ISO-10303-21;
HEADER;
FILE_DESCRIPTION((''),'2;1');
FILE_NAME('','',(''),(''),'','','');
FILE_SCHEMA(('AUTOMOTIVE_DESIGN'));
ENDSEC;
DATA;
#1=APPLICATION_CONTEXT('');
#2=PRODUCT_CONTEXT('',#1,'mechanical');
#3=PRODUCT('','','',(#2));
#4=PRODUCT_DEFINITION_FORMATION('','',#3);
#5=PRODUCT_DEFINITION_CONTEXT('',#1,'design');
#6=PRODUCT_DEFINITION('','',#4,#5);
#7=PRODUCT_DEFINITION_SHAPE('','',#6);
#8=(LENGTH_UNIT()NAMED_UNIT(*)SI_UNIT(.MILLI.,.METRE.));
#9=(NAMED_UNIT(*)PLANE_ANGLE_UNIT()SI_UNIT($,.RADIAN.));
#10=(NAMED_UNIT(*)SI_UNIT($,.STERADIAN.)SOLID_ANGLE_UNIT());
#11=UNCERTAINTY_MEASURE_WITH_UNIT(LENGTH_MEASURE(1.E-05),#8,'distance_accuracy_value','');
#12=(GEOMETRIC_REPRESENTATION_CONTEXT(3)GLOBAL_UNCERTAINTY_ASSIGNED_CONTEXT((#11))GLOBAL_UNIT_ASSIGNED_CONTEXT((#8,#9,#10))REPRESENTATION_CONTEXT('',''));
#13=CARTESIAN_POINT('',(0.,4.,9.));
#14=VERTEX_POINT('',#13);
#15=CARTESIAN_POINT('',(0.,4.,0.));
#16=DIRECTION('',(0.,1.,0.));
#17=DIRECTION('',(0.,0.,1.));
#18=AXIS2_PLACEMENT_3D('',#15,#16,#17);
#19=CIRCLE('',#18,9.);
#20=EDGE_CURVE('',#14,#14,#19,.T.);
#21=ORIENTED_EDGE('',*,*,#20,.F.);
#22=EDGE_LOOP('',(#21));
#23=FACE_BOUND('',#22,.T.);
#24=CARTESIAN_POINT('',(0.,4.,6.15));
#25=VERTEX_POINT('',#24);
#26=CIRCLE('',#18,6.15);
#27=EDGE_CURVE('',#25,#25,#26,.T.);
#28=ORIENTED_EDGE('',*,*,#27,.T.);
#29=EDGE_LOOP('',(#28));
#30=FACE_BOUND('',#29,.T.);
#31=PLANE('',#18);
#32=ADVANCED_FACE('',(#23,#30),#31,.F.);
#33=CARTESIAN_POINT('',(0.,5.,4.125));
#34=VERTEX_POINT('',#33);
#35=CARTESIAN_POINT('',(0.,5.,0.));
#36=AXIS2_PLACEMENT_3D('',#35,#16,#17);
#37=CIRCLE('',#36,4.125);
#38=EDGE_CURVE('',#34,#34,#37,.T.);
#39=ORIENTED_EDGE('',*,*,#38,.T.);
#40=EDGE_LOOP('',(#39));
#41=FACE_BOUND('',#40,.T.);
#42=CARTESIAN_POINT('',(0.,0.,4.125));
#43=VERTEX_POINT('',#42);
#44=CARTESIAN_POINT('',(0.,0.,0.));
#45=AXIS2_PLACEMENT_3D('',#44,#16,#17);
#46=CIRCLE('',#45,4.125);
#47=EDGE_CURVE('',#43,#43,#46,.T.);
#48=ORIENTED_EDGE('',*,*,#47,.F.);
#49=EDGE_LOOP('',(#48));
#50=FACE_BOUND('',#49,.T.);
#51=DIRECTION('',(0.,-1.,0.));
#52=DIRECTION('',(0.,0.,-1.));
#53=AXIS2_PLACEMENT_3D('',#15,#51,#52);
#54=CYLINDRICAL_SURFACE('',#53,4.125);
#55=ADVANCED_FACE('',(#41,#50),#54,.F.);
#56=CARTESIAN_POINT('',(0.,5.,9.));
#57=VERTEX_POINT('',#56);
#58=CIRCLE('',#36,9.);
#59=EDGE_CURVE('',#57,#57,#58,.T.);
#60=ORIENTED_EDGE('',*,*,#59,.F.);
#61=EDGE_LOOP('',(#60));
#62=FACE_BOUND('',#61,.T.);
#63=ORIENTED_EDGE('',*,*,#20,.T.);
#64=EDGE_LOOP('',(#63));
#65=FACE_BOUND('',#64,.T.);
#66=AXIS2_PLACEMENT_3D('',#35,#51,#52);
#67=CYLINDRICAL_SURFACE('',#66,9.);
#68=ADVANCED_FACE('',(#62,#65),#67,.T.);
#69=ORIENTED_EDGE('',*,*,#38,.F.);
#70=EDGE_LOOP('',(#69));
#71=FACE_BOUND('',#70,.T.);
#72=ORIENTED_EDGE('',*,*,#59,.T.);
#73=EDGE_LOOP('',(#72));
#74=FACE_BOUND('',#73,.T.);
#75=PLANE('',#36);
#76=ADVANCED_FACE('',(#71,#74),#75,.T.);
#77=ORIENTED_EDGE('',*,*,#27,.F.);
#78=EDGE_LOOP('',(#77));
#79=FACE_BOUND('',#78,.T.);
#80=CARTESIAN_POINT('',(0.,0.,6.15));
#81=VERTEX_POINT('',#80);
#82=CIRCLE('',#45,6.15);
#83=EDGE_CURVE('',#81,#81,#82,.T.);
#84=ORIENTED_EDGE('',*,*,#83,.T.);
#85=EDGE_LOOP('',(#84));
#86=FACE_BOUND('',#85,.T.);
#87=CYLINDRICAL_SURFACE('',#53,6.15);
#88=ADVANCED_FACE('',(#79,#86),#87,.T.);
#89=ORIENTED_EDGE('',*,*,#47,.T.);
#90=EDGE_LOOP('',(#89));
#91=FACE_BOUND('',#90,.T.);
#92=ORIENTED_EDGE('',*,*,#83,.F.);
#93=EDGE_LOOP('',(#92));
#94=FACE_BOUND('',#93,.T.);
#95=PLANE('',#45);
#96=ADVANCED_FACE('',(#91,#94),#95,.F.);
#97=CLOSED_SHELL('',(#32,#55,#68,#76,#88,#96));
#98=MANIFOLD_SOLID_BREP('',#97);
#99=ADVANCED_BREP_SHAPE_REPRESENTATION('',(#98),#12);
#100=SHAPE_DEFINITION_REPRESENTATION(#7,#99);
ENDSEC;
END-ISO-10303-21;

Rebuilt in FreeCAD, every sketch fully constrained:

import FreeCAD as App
import Part
import Sketcher
from FreeCAD import Vector

doc = App.newDocument("Part")
body = doc.addObject("PartDesign::Body", "Body")

sketch1 = doc.addObject("Sketcher::SketchObject", "Sketch")
body.addObject(sketch1)
sketch1.AttachmentSupport = (doc.XZ_Plane, [""])
sketch1.MapMode = "FlatFace"
sketch1.addGeometry([
    Part.Circle(Vector(0, 0, 0), Vector(0, 0, 1), 6.2),
    Part.Circle(Vector(0, 0, 0), Vector(0, 0, 1), 4.1),
], False)
sketch1.addConstraint([
    Sketcher.Constraint("Coincident", 0, 3, -1, 1),
    Sketcher.Constraint("Coincident", 1, 3, -1, 1),
    Sketcher.Constraint("Diameter", 0, 12.3),
    Sketcher.Constraint("Diameter", 1, 8.25),
])
pad1 = doc.addObject("PartDesign::Pad", "Pad")
body.addObject(pad1)
pad1.Profile = sketch1
pad1.Length = 4
pad1.Reversed = True

sketch2 = doc.addObject("Sketcher::SketchObject", "Sketch001")
body.addObject(sketch2)
sketch2.AttachmentSupport = (doc.XZ_Plane, [""])
sketch2.MapMode = "FlatFace"
sketch2.AttachmentOffset = App.Placement(Vector(0, 0, -4), App.Rotation())
sketch2.addGeometry([
    Part.Circle(Vector(0, 0, 0), Vector(0, 0, 1), 9),
    Part.Circle(Vector(0, 0, 0), Vector(0, 0, 1), 4.1),
], False)
sketch2.addConstraint([
    Sketcher.Constraint("Coincident", 0, 3, -1, 1),
    Sketcher.Constraint("Coincident", 1, 3, -1, 1),
    Sketcher.Constraint("Diameter", 0, 18.0),
    Sketcher.Constraint("Diameter", 1, 8.25),
])
pad2 = doc.addObject("PartDesign::Pad", "Pad001")
body.addObject(pad2)
pad2.Profile = sketch2
pad2.Length = 1
pad2.Reversed = True

doc.recompute()
